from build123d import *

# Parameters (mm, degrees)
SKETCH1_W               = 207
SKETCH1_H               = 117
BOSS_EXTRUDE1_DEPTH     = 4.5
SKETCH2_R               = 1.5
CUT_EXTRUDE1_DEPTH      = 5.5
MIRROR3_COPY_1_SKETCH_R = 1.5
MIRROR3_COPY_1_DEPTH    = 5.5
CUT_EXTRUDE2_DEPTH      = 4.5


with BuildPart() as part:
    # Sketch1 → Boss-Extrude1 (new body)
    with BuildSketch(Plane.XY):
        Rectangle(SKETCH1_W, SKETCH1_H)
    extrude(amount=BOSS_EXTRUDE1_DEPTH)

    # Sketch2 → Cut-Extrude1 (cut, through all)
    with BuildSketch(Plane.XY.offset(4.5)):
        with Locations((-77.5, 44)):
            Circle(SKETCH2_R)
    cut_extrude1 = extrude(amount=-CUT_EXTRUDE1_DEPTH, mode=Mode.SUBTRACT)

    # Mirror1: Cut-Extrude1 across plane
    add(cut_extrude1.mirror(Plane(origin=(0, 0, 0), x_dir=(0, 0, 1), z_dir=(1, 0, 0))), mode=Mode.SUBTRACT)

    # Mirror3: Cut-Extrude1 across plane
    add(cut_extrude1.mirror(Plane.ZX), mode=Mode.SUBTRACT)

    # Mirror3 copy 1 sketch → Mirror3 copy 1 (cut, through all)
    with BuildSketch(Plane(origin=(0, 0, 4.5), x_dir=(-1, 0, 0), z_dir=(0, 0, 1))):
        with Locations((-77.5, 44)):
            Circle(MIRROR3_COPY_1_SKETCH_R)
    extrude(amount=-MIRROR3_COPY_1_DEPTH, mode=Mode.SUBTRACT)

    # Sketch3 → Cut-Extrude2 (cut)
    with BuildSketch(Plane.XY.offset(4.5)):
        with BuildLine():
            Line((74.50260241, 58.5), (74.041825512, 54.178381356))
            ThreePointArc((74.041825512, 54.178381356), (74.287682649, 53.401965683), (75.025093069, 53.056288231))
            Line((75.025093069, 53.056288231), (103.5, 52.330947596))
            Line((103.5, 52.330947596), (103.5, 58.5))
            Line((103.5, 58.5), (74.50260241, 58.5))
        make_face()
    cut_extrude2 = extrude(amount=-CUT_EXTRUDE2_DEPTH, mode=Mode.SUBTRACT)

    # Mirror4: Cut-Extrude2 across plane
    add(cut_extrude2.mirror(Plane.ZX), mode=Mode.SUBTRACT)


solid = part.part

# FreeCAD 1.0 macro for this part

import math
import FreeCAD as App
import Part
import Sketcher
from FreeCAD import Vector
Q = App.Units.Quantity


def add_polygon(sketch, points):
    """Adds a closed chain of lines whose ends are joined by coincident constraints."""
    first, n = sketch.GeometryCount, len(points)
    for a, b in zip(points, points[1:] + points[:1]):
        sketch.addGeometry(Part.LineSegment(App.Vector(*a, 0), App.Vector(*b, 0)), False)
    for i in range(n):
        sketch.addConstraint(Sketcher.Constraint("Coincident", first + i, 2, first + (i + 1) % n, 1))

doc = App.newDocument("Part")
params = doc.addObject("Spreadsheet::Sheet", "Params")
for row, (alias, value) in enumerate([
    ("sketch1_width", "207 mm"),
    ("sketch1_height", "117 mm"),
    ("pad1_length", "4.5 mm"),
    ("sketch2_diameter", "3 mm"),
    ("sketch3_diameter", "3 mm"),
    ("pocket3_length", "4.5 mm"),
], start=1):
    params.set(f"A{row}", alias)
    params.set(f"B{row}", "=" + value)
    params.setAlias(f"B{row}", alias)

body = doc.addObject("PartDesign::Body", "Body")

# Sketch on XY plane
sketch1 = doc.addObject("Sketcher::SketchObject", "Sketch")
body.addObject(sketch1)
sketch1.AttachmentSupport = (doc.XY_Plane, [""])
sketch1.MapMode = "FlatFace"
add_polygon(sketch1, [(-103.5, 58.5), (-103.5, -58.5), (103.5, -58.5), (103.5, 58.5)])  # lines 0-3
sketch1.addConstraint(Sketcher.Constraint("Vertical", 0))
sketch1.addConstraint(Sketcher.Constraint("Horizontal", 1))
sketch1.addConstraint(Sketcher.Constraint("Vertical", 2))
sketch1.addConstraint(Sketcher.Constraint("Horizontal", 3))
sketch1.addConstraint(Sketcher.Constraint("Symmetric", 0, 2, 2, 2, -1, 1))
sketch1.addConstraint(Sketcher.Constraint("DistanceX", 1, 1, 1, 2, Q("207 mm")))
sketch1.addConstraint(Sketcher.Constraint("DistanceY", 0, 2, 0, 1, Q("117 mm")))
sketch1.setExpression("Constraints[9]", "Params.sketch1_width")
sketch1.setExpression("Constraints[10]", "Params.sketch1_height")
pad1 = doc.addObject("PartDesign::Pad", "Pad")
body.addObject(pad1)
pad1.Profile = sketch1
pad1.setExpression("Length", "Params.pad1_length")

# Sketch on XY plane
sketch2 = doc.addObject("Sketcher::SketchObject", "Sketch001")
body.addObject(sketch2)
sketch2.AttachmentSupport = (doc.XY_Plane, [""])
sketch2.MapMode = "FlatFace"
sketch2.AttachmentOffset = App.Placement(Vector(0, 0, 4.5), App.Rotation())
sketch2.addGeometry(Part.Circle(Vector(-77.5, 44, 0), Vector(0, 0, 1), 1.5), False)
sketch2.addConstraint(Sketcher.Constraint("Diameter", 0, Q("3 mm")))
sketch2.addConstraint(Sketcher.Constraint("DistanceY", -1, 1, 0, 3, Q("44 mm")))
sketch2.addConstraint(Sketcher.Constraint("DistanceX", 0, 3, -1, 1, Q("77.5 mm")))
sketch2.setExpression("Constraints[0]", "Params.sketch2_diameter")
pocket1 = doc.addObject("PartDesign::Pocket", "Pocket")
body.addObject(pocket1)
pocket1.Profile = sketch2
pocket1.Type = "ThroughAll"
doc.recompute()

mirrored = doc.addObject("PartDesign::Mirrored", "Mirrored")
body.addObject(mirrored)
mirrored.Originals = [pocket1]
mirrored.MirrorPlane = (doc.YZ_Plane, [""])
body.Tip = mirrored
doc.recompute()

mirrored2 = doc.addObject("PartDesign::Mirrored", "Mirrored001")
body.addObject(mirrored2)
mirrored2.Originals = [pocket1]
mirrored2.MirrorPlane = (doc.XZ_Plane, [""])
body.Tip = mirrored2

# Sketch on XY plane
sketch3 = doc.addObject("Sketcher::SketchObject", "Sketch002")
body.addObject(sketch3)
sketch3.AttachmentSupport = (doc.XY_Plane, [""])
sketch3.MapMode = "FlatFace"
sketch3.AttachmentOffset = App.Placement(Vector(0, 0, 4.5), App.Rotation())
sketch3.addGeometry(Part.Circle(Vector(77.5, -44, 0), Vector(0, 0, 1), 1.5), False)
sketch3.addConstraint(Sketcher.Constraint("Diameter", 0, Q("3 mm")))
sketch3.addConstraint(Sketcher.Constraint("DistanceY", 0, 3, -1, 1, Q("44 mm")))
sketch3.addConstraint(Sketcher.Constraint("DistanceX", -1, 1, 0, 3, Q("77.5 mm")))
sketch3.setExpression("Constraints[0]", "Params.sketch3_diameter")
pocket2 = doc.addObject("PartDesign::Pocket", "Pocket001")
body.addObject(pocket2)
pocket2.Profile = sketch3
pocket2.Type = "ThroughAll"

# Sketch on XY plane
sketch4 = doc.addObject("Sketcher::SketchObject", "Sketch003")
body.addObject(sketch4)
sketch4.AttachmentSupport = (doc.XY_Plane, [""])
sketch4.MapMode = "FlatFace"
sketch4.AttachmentOffset = App.Placement(Vector(0, 0, 4.5), App.Rotation())
sketch4.addGeometry(Part.LineSegment(Vector(74.502602, 58.5, 0), Vector(74.041826, 54.178381, 0)), False)
sketch4.addGeometry(Part.ArcOfCircle(Part.Circle(Vector(75.050935, 54.070789, 0), Vector(0, 0, 1), 1.01483), math.radians(173.914038), math.radians(268.540822)), False)
sketch4.addGeometry(Part.LineSegment(Vector(75.025093, 53.056288, 0), Vector(103.5, 52.330948, 0)), False)
sketch4.addGeometry(Part.LineSegment(Vector(103.5, 52.330948, 0), Vector(103.5, 58.5, 0)), False)
sketch4.addGeometry(Part.LineSegment(Vector(103.5, 58.5, 0), Vector(74.502602, 58.5, 0)), False)
sketch4.addConstraint(Sketcher.Constraint("Tangent", 0, 2, 1, 1))
sketch4.addConstraint(Sketcher.Constraint("Tangent", 1, 2, 2, 1))
sketch4.addConstraint(Sketcher.Constraint("Coincident", 2, 2, 3, 1))
sketch4.addConstraint(Sketcher.Constraint("Coincident", 3, 2, 4, 1))
sketch4.addConstraint(Sketcher.Constraint("Coincident", 4, 2, 0, 1))
sketch4.addConstraint(Sketcher.Constraint("Vertical", 3))
sketch4.addConstraint(Sketcher.Constraint("Horizontal", 4))
sketch4.addConstraint(Sketcher.Constraint("DistanceX", -1, 1, 2, 2, Q("103.5 mm")))
sketch4.addConstraint(Sketcher.Constraint("DistanceY", -1, 1, 3, 2, Q("58.5 mm")))
sketch4.addConstraint(Sketcher.Constraint("Radius", 1, Q("1.01483 mm")))
sketch4.addConstraint(Sketcher.Constraint("DistanceX", 4, 2, 4, 1, Q("28.997398 mm")))
sketch4.addConstraint(Sketcher.Constraint("DistanceY", 3, 1, 3, 2, Q("6.169052 mm")))
sketch4.addConstraint(Sketcher.Constraint("DistanceY", -1, 1, 1, 3, Q("54.070789 mm")))
sketch4.addConstraint(Sketcher.Constraint("DistanceY", -1, 1, 0, 2, Q("54.178381 mm")))
pocket3 = doc.addObject("PartDesign::Pocket", "Pocket002")
body.addObject(pocket3)
pocket3.Profile = sketch4
pocket3.setExpression("Length", "Params.pocket3_length")
doc.recompute()

mirrored3 = doc.addObject("PartDesign::Mirrored", "Mirrored002")
body.addObject(mirrored3)
mirrored3.Originals = [pocket3]
mirrored3.MirrorPlane = (doc.XZ_Plane, [""])
body.Tip = mirrored3

doc.recompute()
